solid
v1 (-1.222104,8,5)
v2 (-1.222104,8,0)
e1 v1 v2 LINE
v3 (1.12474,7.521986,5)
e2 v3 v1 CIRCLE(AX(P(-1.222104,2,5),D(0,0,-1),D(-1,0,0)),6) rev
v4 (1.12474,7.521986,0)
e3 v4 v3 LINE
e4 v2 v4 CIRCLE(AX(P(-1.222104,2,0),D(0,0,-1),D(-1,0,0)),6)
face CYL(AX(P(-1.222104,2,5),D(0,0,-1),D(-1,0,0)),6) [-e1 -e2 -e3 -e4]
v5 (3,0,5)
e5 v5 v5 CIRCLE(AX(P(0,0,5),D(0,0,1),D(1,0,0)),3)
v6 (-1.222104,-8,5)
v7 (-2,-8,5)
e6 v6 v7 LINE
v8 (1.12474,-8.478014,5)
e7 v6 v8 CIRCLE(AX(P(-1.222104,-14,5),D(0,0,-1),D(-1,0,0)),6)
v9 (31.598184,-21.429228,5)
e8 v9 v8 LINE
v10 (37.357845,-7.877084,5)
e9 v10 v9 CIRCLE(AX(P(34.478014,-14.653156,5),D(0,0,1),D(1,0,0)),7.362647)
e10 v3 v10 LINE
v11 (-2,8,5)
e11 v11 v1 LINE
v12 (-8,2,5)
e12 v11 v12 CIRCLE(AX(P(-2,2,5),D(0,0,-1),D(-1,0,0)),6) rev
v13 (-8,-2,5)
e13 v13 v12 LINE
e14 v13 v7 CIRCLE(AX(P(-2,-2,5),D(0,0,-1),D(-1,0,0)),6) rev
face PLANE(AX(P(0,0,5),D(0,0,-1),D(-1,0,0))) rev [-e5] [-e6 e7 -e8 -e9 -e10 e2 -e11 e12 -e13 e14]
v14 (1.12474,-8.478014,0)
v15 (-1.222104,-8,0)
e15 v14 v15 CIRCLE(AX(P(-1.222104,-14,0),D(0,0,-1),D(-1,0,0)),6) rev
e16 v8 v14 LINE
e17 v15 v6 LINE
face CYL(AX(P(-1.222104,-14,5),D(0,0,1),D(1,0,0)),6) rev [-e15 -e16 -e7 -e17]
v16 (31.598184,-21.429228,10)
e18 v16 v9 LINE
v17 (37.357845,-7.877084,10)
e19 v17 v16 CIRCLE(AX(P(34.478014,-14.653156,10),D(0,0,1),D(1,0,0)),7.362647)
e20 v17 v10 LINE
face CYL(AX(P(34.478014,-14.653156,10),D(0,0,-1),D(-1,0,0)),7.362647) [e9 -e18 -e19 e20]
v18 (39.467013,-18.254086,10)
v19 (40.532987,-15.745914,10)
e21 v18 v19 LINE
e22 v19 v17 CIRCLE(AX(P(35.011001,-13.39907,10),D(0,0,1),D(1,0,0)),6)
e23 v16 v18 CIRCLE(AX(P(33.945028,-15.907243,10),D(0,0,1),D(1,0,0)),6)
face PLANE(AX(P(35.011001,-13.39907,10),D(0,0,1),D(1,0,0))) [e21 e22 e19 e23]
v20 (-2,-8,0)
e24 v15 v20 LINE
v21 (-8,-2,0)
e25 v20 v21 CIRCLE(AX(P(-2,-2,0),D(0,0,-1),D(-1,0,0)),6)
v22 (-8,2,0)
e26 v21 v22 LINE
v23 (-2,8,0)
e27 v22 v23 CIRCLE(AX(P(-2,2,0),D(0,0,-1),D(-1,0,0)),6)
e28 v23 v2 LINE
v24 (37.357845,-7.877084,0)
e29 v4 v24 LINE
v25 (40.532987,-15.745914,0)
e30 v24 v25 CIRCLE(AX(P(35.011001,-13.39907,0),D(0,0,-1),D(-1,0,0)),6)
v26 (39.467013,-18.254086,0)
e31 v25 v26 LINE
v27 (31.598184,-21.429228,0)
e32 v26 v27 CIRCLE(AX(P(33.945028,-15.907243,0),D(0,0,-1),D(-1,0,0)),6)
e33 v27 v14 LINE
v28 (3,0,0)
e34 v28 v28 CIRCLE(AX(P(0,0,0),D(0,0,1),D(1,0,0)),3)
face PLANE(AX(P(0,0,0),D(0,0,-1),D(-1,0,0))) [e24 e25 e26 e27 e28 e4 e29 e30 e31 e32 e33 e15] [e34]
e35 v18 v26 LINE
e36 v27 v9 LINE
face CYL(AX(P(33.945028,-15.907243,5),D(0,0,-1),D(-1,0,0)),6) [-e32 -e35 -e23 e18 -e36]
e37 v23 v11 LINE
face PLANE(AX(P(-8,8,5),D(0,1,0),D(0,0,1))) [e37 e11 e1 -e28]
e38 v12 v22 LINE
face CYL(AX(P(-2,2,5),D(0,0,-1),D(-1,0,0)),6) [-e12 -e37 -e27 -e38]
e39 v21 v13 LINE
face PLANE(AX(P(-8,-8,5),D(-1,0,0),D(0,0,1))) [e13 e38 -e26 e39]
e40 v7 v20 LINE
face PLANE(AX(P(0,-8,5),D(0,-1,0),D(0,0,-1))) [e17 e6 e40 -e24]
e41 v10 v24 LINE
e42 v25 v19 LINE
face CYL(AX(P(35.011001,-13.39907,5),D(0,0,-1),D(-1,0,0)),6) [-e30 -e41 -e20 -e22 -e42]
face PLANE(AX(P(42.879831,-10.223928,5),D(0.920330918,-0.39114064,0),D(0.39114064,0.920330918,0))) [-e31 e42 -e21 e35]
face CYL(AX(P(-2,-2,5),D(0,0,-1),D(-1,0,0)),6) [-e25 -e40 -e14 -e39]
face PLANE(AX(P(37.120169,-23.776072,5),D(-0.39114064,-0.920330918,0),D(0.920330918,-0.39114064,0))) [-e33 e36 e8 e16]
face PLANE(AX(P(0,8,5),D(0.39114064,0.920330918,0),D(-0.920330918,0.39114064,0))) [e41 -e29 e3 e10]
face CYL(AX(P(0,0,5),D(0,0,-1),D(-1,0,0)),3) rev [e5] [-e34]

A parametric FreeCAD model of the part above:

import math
import FreeCAD as App
import Part
import Sketcher
Q = App.Units.Quantity


def edges_at(feature, points):
    """Names of the edges that pass closest to the given points."""
    edges = feature.Shape.Edges
    near = lambda p: min(range(len(edges)), key=lambda i: edges[i].distToShape(Part.Vertex(*p))[0])
    return sorted({f"Edge{near(p) + 1}" for p in points})

doc = App.newDocument("Part")
params = doc.addObject("Spreadsheet::Sheet", "Params")
for row, (alias, value) in enumerate([
    ("sketch1_diameter", "6 mm"),
    ("sketch1_width", "8 mm"),
    ("sketch1_height", "16 mm"),
    ("pad1_length", "5 mm"),
    ("fillet_radius", "6 mm"),
    ("sketch2_radius", "6 mm"),
    ("pad2_length", "5 mm"),
], start=1):
    params.set(f"A{row}", alias)
    params.set(f"B{row}", "=" + value)
    params.setAlias(f"B{row}", alias)

body = doc.addObject("PartDesign::Body", "Body")

sketch1 = body.newObject("Sketcher::SketchObject", "Sketch")
sketch1.AttachmentSupport = (doc.getObject("XY_Plane"), [""])
sketch1.MapMode = "FlatFace"
sketch1.addGeometry([
    Part.LineSegment(App.Vector(-8, 8, 0), App.Vector(-8, -8, 0)),
    Part.LineSegment(App.Vector(-8, -8, 0), App.Vector(0, -8, 0)),
    Part.LineSegment(App.Vector(0, -8, 0), App.Vector(37.1, -23.8, 0)),
    Part.LineSegment(App.Vector(37.1, -23.8, 0), App.Vector(42.9, -10.2, 0)),
    Part.LineSegment(App.Vector(42.9, -10.2, 0), App.Vector(0, 8, 0)),
    Part.LineSegment(App.Vector(0, 8, 0), App.Vector(-8, 8, 0)),
    Part.Circle(App.Vector(0, 0, 0), App.Vector(0, 0, 1), 3),
], False)
sketch1.addConstraint([
    Sketcher.Constraint("Coincident", 0, 2, 1, 1),
    Sketcher.Constraint("Coincident", 1, 2, 2, 1),
    Sketcher.Constraint("Coincident", 2, 2, 3, 1),
    Sketcher.Constraint("Coincident", 3, 2, 4, 1),
    Sketcher.Constraint("Coincident", 4, 2, 5, 1),
    Sketcher.Constraint("Coincident", 5, 2, 0, 1),
    Sketcher.Constraint("Vertical", 0),
    Sketcher.Constraint("Horizontal", 1),
    Sketcher.Constraint("Horizontal", 5),
    Sketcher.Constraint("Coincident", 6, 3, -1, 1),
    Sketcher.Constraint("Symmetric", 1, 2, 4, 2, -1, 1),
    Sketcher.Constraint("PointOnObject", 1, 2, -2),
    Sketcher.Constraint("Perpendicular", 2, 3),
    Sketcher.Constraint("Perpendicular", 3, 4),
    Sketcher.Constraint("Diameter", 6, Q("6 mm")),
    Sketcher.Constraint("DistanceX", 1, 1, 1, 2, Q("8 mm")),
    Sketcher.Constraint("DistanceY", 0, 2, 0, 1, Q("16 mm")),
    Sketcher.Constraint("DistanceX", -1, 1, 2, 2, Q("37.120169 mm")),
    Sketcher.Constraint("DistanceY", 2, 2, -1, 1, Q("23.776072 mm")),
])
sketch1.setExpression("Constraints[14]", "Params.sketch1_diameter")
sketch1.setExpression("Constraints[15]", "Params.sketch1_width")
sketch1.setExpression("Constraints[16]", "Params.sketch1_height")
pad1 = body.newObject("PartDesign::Pad", "Pad")
pad1.Profile = sketch1
pad1.setExpression("Length", "Params.pad1_length")
doc.recompute()

fillet = body.newObject("PartDesign::Fillet", "Fillet")
fillet.Base = (pad1, edges_at(pad1, [
    (-8, -8, 2.5),
    (0, -8, 2.5),
    (37.12, -23.776, 2.5),
    (42.88, -10.224, 2.5),
    (0, 8, 2.5),
    (-8, 8, 2.5),
]))
fillet.setExpression("Radius", "Params.fillet_radius")

sketch2 = body.newObject("Sketcher::SketchObject", "Sketch001")
sketch2.AttachmentSupport = (doc.getObject("XY_Plane"), [""])
sketch2.MapMode = "FlatFace"
sketch2.AttachmentOffset = App.Placement(App.Vector(0, 0, 10), App.Rotation())
sketch2.addGeometry([
    Part.LineSegment(App.Vector(39.5, -18.3, 0), App.Vector(40.5, -15.7, 0)),
    Part.ArcOfCircle(Part.Circle(App.Vector(35, -13.4, 0), App.Vector(0, 0, 1), 6), math.radians(-23), math.radians(67)),
    Part.ArcOfCircle(Part.Circle(App.Vector(34.5, -14.7, 0), App.Vector(0, 0, 1), 7.4), math.radians(66.97), math.radians(80.3)),
    Part.ArcOfCircle(Part.Circle(App.Vector(34.5, -14.7, 0), App.Vector(0, 0, 1), 7.4), math.radians(80), math.radians(247)),
    Part.ArcOfCircle(Part.Circle(App.Vector(33.9, -15.9, 0), App.Vector(0, 0, 1), 6), math.radians(-113), math.radians(-23)),
], False)
sketch2.addConstraint([
    Sketcher.Constraint("Tangent", 0, 2, 1, 1),
    Sketcher.Constraint("Tangent", 1, 2, 2, 1),
    Sketcher.Constraint("Tangent", 2, 2, 3, 1),
    Sketcher.Constraint("Tangent", 3, 2, 4, 1),
    Sketcher.Constraint("Tangent", 4, 2, 0, 1),
    Sketcher.Constraint("Equal", 2, 3),
    Sketcher.Constraint("Equal", 1, 4),
    Sketcher.Constraint("Radius", 1, Q("6 mm")),
    Sketcher.Constraint("DistanceX", -1, 1, 1, 3, Q("35.011001 mm")),
    Sketcher.Constraint("Radius", 2, Q("7.362647 mm")),
    Sketcher.Constraint("DistanceX", 2, 3, 4, 2, Q("4.988999 mm")),
    Sketcher.Constraint("DistanceY", 1, 3, -1, 1, Q("13.39907 mm")),
    Sketcher.Constraint("DistanceY", 2, 2, -1, 1, Q("7.395728 mm")),
    Sketcher.Constraint("DistanceY", 3, 2, -1, 1, Q("21.429228 mm")),
])
sketch2.setExpression("Constraints[7]", "Params.sketch2_radius")
pad2 = body.newObject("PartDesign::Pad", "Pad001")
pad2.Profile = sketch2
pad2.setExpression("Length", "Params.pad2_length")
pad2.Reversed = True

doc.recompute()
